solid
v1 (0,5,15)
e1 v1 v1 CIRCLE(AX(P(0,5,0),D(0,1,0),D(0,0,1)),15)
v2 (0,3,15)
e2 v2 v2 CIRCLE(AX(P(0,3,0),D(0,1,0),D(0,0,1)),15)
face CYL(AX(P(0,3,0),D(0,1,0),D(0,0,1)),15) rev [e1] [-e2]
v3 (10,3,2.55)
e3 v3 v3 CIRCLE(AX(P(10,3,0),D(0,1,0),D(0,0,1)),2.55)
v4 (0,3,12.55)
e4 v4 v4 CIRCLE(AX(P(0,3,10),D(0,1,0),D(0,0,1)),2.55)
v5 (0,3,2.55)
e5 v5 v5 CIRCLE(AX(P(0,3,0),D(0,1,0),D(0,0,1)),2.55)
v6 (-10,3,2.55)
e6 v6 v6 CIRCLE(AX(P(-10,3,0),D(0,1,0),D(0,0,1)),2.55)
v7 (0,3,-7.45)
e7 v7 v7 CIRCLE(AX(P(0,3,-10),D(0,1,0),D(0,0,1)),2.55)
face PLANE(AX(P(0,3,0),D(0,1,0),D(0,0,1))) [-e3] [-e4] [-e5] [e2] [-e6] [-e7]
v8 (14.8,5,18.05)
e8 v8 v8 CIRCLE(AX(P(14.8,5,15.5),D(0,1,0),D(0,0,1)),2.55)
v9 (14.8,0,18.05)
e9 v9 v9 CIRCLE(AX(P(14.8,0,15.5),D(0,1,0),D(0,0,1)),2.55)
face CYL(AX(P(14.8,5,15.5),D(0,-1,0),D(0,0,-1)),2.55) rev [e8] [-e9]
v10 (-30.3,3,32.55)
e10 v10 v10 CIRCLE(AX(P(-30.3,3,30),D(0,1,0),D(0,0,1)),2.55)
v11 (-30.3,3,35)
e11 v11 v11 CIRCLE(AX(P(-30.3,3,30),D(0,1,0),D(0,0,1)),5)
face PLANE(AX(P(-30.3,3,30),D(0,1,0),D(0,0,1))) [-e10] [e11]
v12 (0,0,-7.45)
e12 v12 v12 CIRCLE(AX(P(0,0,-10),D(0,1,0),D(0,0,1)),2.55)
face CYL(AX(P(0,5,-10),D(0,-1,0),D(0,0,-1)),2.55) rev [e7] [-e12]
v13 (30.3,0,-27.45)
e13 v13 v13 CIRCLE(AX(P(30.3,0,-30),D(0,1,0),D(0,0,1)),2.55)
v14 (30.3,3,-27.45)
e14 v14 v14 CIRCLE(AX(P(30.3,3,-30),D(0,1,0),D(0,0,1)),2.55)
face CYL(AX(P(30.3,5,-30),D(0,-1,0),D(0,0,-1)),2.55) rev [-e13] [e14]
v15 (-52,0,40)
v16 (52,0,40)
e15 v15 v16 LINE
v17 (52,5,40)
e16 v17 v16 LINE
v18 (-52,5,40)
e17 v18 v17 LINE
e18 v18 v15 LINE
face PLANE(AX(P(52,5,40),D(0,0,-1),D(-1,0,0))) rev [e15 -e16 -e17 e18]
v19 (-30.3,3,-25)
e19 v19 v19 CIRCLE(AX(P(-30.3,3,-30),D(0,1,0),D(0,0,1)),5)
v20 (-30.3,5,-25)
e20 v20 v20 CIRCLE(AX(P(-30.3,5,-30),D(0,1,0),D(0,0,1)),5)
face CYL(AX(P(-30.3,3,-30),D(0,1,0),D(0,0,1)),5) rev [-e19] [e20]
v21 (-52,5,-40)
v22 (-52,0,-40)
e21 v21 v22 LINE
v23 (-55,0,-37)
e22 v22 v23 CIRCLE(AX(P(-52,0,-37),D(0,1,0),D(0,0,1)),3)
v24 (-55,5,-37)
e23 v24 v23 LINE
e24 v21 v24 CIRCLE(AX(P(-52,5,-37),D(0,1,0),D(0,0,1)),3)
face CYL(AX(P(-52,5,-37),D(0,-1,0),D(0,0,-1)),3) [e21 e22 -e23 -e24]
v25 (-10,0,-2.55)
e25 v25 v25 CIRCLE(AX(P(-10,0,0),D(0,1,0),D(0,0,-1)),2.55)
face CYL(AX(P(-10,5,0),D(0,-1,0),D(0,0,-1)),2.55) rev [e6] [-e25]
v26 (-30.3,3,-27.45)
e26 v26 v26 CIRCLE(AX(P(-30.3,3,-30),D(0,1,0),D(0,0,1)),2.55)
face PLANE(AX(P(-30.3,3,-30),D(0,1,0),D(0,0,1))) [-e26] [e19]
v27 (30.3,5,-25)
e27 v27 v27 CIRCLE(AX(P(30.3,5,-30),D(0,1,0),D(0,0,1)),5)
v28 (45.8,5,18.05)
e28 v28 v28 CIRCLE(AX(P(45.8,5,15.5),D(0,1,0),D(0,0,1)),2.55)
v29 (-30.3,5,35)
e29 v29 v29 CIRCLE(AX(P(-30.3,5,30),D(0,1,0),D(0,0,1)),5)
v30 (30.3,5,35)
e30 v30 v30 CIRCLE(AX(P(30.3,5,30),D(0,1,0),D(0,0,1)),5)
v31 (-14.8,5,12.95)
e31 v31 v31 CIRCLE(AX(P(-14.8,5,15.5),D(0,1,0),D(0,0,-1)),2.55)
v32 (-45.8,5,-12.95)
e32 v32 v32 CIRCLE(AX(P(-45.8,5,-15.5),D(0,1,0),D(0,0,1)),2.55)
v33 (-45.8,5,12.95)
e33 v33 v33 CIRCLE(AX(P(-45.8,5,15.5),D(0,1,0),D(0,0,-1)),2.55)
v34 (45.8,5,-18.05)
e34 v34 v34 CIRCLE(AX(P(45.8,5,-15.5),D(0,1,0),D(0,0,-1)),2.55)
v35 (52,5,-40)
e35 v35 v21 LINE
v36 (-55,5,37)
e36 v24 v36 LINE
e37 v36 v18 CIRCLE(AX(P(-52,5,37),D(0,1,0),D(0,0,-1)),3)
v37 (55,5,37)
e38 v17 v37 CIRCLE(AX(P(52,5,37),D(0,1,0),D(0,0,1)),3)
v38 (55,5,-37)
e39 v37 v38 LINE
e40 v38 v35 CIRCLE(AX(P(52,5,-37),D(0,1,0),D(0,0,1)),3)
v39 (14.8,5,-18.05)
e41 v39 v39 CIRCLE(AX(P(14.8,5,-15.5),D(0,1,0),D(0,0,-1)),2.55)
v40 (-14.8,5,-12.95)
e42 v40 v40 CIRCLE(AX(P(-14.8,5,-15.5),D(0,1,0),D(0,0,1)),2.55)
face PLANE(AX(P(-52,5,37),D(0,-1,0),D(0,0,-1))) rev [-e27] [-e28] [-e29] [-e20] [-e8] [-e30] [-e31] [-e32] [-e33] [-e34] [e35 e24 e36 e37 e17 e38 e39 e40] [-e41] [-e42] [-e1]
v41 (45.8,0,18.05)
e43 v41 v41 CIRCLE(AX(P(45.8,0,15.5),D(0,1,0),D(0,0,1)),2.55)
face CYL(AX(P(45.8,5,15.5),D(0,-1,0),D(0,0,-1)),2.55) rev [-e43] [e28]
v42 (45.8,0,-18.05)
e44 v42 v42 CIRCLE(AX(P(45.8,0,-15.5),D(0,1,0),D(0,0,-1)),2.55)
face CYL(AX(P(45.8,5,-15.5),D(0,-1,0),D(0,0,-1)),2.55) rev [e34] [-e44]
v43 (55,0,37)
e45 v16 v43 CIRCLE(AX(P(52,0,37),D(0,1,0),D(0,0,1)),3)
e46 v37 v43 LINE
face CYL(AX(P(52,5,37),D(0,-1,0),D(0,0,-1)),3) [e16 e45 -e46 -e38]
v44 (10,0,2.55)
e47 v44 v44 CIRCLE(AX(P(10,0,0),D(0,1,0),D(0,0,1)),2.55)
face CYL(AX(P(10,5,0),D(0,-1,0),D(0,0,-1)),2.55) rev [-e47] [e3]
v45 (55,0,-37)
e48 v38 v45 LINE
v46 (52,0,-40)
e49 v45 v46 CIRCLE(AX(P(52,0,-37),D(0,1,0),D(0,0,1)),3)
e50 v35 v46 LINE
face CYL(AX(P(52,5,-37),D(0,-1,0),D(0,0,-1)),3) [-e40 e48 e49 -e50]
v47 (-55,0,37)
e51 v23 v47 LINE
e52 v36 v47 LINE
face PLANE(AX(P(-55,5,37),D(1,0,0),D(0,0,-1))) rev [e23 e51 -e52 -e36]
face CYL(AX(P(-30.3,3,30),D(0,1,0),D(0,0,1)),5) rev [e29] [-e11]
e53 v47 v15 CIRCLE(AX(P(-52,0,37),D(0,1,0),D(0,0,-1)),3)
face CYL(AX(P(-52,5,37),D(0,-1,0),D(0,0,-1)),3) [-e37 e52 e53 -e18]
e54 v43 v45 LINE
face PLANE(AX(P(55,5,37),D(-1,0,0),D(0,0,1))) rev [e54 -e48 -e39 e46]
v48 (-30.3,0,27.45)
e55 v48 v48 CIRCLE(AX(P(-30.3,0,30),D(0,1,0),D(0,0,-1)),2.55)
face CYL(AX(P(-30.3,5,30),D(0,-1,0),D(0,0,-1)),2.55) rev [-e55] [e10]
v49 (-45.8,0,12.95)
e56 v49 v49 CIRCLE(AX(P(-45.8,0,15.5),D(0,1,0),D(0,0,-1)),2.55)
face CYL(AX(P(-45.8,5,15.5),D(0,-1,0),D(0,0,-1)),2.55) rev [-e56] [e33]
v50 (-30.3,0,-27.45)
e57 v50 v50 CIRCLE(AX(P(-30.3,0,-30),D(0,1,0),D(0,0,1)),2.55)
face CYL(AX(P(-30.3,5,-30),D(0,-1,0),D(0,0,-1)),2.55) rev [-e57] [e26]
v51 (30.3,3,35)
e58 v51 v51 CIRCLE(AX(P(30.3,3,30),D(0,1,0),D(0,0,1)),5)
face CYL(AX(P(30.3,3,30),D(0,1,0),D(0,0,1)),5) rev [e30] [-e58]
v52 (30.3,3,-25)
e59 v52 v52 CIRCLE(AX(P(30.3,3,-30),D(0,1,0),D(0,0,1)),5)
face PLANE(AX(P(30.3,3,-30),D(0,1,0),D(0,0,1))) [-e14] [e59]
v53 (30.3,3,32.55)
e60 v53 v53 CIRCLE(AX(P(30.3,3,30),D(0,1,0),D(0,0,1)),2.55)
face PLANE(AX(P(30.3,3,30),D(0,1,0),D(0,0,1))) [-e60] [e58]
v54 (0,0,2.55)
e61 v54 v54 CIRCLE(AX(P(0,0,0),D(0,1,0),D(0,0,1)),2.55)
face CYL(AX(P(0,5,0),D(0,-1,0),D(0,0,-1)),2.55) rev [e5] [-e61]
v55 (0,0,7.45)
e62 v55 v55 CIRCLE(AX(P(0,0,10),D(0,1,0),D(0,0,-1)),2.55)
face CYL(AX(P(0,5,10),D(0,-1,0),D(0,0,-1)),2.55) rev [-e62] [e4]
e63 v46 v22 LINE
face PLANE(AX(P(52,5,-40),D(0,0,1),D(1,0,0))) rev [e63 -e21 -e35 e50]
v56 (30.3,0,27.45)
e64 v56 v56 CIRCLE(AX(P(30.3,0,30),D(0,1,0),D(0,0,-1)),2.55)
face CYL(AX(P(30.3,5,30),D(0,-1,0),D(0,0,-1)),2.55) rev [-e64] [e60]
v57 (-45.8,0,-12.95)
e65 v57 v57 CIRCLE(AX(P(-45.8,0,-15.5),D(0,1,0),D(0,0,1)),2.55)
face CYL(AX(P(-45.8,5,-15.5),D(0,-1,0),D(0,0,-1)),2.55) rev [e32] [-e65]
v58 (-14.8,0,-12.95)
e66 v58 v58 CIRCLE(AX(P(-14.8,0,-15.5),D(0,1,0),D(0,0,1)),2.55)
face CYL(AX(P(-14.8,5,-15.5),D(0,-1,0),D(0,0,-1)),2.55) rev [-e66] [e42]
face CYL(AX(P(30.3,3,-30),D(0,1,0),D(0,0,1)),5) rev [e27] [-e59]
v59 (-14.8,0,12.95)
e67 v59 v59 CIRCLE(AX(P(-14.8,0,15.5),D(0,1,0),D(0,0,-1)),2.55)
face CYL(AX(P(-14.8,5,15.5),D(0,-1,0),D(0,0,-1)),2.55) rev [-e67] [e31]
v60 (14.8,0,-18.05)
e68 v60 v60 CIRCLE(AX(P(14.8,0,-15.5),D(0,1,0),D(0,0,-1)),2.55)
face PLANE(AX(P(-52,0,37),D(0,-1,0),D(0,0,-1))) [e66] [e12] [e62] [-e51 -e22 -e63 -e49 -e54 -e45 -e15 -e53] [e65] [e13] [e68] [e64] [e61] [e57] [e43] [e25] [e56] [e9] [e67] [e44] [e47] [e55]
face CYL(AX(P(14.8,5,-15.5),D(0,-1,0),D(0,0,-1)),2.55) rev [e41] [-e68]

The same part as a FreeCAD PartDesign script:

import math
import FreeCAD as App
import Part
import Sketcher
from FreeCAD import Vector
Q = App.Units.Quantity

doc = App.newDocument("Part")
body = doc.addObject("PartDesign::Body", "Body")

# Sketch on XZ plane
sketch1 = doc.addObject("Sketcher::SketchObject", "Sketch")
body.addObject(sketch1)
sketch1.AttachmentSupport = (doc.XZ_Plane, [""])
sketch1.MapMode = "FlatFace"
sketch1.addGeometry([
    Part.LineSegment(Vector(-52, 40, 0), Vector(52, 40, 0)),  # 0
    Part.ArcOfCircle(Part.Circle(Vector(52, 37, 0), Vector(0, 0, 1), 3), math.radians(0), math.radians(90)),  # 1
    Part.LineSegment(Vector(55, 37, 0), Vector(55, -37, 0)),  # 2
    Part.ArcOfCircle(Part.Circle(Vector(52, -37, 0), Vector(0, 0, 1), 3), math.radians(-90), math.radians(0)),  # 3
    Part.LineSegment(Vector(52, -40, 0), Vector(-52, -40, 0)),  # 4
    Part.ArcOfCircle(Part.Circle(Vector(-52, -37, 0), Vector(0, 0, 1), 3), math.radians(180), math.radians(270)),  # 5
    Part.LineSegment(Vector(-55, -37, 0), Vector(-55, 37, 0)),  # 6
    Part.ArcOfCircle(Part.Circle(Vector(-52, 37, 0), Vector(0, 0, 1), 3), math.radians(90), math.radians(180)),  # 7
    Part.Circle(Vector(30.3, 30, 0), Vector(0, 0, 1), 2.5),  # 8
    Part.Circle(Vector(45.8, 15.5, 0), Vector(0, 0, 1), 2.5),  # 9
    Part.Circle(Vector(14.8, 15.5, 0), Vector(0, 0, 1), 2.5),  # 10
    Part.Circle(Vector(-30.3, 30, 0), Vector(0, 0, 1), 2.5),  # 11
    Part.Circle(Vector(0, 10, 0), Vector(0, 0, 1), 2.5),  # 12
    Part.Circle(Vector(-14.8, 15.5, 0), Vector(0, 0, 1), 2.5),  # 13
    Part.Circle(Vector(-45.8, 15.5, 0), Vector(0, 0, 1), 2.5),  # 14
    Part.Circle(Vector(45.8, -15.5, 0), Vector(0, 0, 1), 2.5),  # 15
    Part.Circle(Vector(10, 0, 0), Vector(0, 0, 1), 2.5),  # 16
    Part.Circle(Vector(14.8, -15.5, 0), Vector(0, 0, 1), 2.5),  # 17
    Part.Circle(Vector(30.3, -30, 0), Vector(0, 0, 1), 2.5),  # 18
    Part.Circle(Vector(0, 0, 0), Vector(0, 0, 1), 2.5),  # 19
    Part.Circle(Vector(-10, 0, 0), Vector(0, 0, 1), 2.5),  # 20
    Part.Circle(Vector(0, -10, 0), Vector(0, 0, 1), 2.5),  # 21
    Part.Circle(Vector(-14.8, -15.5, 0), Vector(0, 0, 1), 2.5),  # 22
    Part.Circle(Vector(-45.8, -15.5, 0), Vector(0, 0, 1), 2.5),  # 23
    Part.Circle(Vector(-30.3, -30, 0), Vector(0, 0, 1), 2.5),  # 24
], False)
sketch1.addConstraint([
    Sketcher.Constraint("Tangent", 0, 2, 1, 2),
    Sketcher.Constraint("Tangent", 1, 1, 2, 1),
    Sketcher.Constraint("Tangent", 2, 2, 3, 2),
    Sketcher.Constraint("Tangent", 3, 1, 4, 1),
    Sketcher.Constraint("Tangent", 4, 2, 5, 2),
    Sketcher.Constraint("Tangent", 5, 1, 6, 1),
    Sketcher.Constraint("Tangent", 6, 2, 7, 2),
    Sketcher.Constraint("Tangent", 7, 1, 0, 1),
    Sketcher.Constraint("Horizontal", 0),
    Sketcher.Constraint("Vertical", 2),
    Sketcher.Constraint("Horizontal", 4),
    Sketcher.Constraint("Vertical", 6),
    Sketcher.Constraint("Coincident", 19, 3, -1, 1),
    Sketcher.Constraint("Equal", 1, 3),
    Sketcher.Constraint("Equal", 3, 5),
    Sketcher.Constraint("Equal", 5, 7),
    Sketcher.Constraint("Equal", 8, 9),
    Sketcher.Constraint("Equal", 9, 10),
    Sketcher.Constraint("Equal", 10, 11),
    Sketcher.Constraint("Equal", 11, 12),
    Sketcher.Constraint("Equal", 12, 13),
    Sketcher.Constraint("Equal", 13, 14),
    Sketcher.Constraint("Equal", 14, 15),
    Sketcher.Constraint("Equal", 15, 16),
    Sketcher.Constraint("Equal", 16, 17),
    Sketcher.Constraint("Equal", 17, 18),
    Sketcher.Constraint("Equal", 18, 19),
    Sketcher.Constraint("Equal", 19, 20),
    Sketcher.Constraint("Equal", 20, 21),
    Sketcher.Constraint("Equal", 21, 22),
    Sketcher.Constraint("Equal", 22, 23),
    Sketcher.Constraint("Equal", 23, 24),
    Sketcher.Constraint("Symmetric", 1, 3, 5, 3, -1, 1),
    Sketcher.Constraint("Symmetric", 14, 3, 15, 3, -1, 1),
    Sketcher.Constraint("Symmetric", 13, 3, 17, 3, -1, 1),
    Sketcher.Constraint("Symmetric", 11, 3, 18, 3, -1, 1),
    Sketcher.Constraint("Symmetric", 16, 3, 20, 3, -1, 1),
    Sketcher.Constraint("Symmetric", 12, 3, 21, 3, -1, 1),
    Sketcher.Constraint("Symmetric", 10, 3, 22, 3, -1, 1),
    Sketcher.Constraint("Symmetric", 9, 3, 23, 3, -1, 1),
    Sketcher.Constraint("Symmetric", 8, 3, 24, 3, -1, 1),
    Sketcher.Constraint("Symmetric", 8, 3, 11, 3, -2),
    Sketcher.Constraint("Symmetric", 10, 3, 13, 3, -2),
    Sketcher.Constraint("Symmetric", 9, 3, 14, 3, -2),
    Sketcher.Constraint("PointOnObject", 12, 3, -2),
    Sketcher.Constraint("PointOnObject", 16, 3, -1),
    Sketcher.Constraint("Horizontal", 9, 3, 10, 3),
    Sketcher.Constraint("Radius", 1, Q("3 mm")),
    Sketcher.Constraint("Diameter", 8, Q("5.1 mm")),
    Sketcher.Constraint("DistanceX", 0, 1, 0, 2, Q("104 mm")),
    Sketcher.Constraint("DistanceY", 2, 2, 2, 1, Q("74 mm")),
    Sketcher.Constraint("DistanceY", -1, 1, 8, 3, Q("30 mm")),
    Sketcher.Constraint("DistanceY", -1, 1, 12, 3, Q("10 mm")),
    Sketcher.Constraint("DistanceX", -1, 1, 16, 3, Q("10 mm")),
    Sketcher.Constraint("DistanceX", 10, 3, 9, 3, Q("31 mm")),
    Sketcher.Constraint("DistanceY", 15, 3, 9, 3, Q("31 mm")),
    Sketcher.Constraint("DistanceX", -1, 1, 8, 3, Q("30.3 mm")),
    Sketcher.Constraint("DistanceX", -1, 1, 9, 3, Q("45.8 mm")),
])
pad1 = doc.addObject("PartDesign::Pad", "Pad")
body.addObject(pad1)
pad1.Profile = sketch1
pad1.Length = 5
pad1.Reversed = True

# Sketch on XZ plane
sketch2 = doc.addObject("Sketcher::SketchObject", "Sketch001")
body.addObject(sketch2)
sketch2.AttachmentSupport = (doc.XZ_Plane, [""])
sketch2.MapMode = "FlatFace"
sketch2.AttachmentOffset = App.Placement(Vector(0, 0, -5), App.Rotation())
sketch2.addGeometry([
    Part.Circle(Vector(-30, 30, 0), Vector(0, 0, 1), 5),  # 0
    Part.Circle(Vector(-30, -30, 0), Vector(0, 0, 1), 5),  # 1
    Part.Circle(Vector(30, 30, 0), Vector(0, 0, 1), 5),  # 2
    Part.Circle(Vector(30, -30, 0), Vector(0, 0, 1), 5),  # 3
    Part.Circle(Vector(0, 0, 0), Vector(0, 0, 1), 15),  # 4
], False)
sketch2.addConstraint([
    Sketcher.Constraint("Coincident", 4, 3, -1, 1),
    Sketcher.Constraint("Equal", 0, 1),
    Sketcher.Constraint("Equal", 1, 2),
    Sketcher.Constraint("Equal", 2, 3),
    Sketcher.Constraint("Symmetric", 1, 3, 2, 3, -1, 1),
    Sketcher.Constraint("Symmetric", 0, 3, 3, 3, -1, 1),
    Sketcher.Constraint("Symmetric", 0, 3, 2, 3, -2),
    Sketcher.Constraint("Diameter", 0, Q("10 mm")),
    Sketcher.Constraint("Diameter", 4, Q("30 mm")),
    Sketcher.Constraint("DistanceY", -1, 1, 0, 3, Q("30 mm")),
    Sketcher.Constraint("DistanceX", 0, 3, -1, 1, Q("30.3 mm")),
])
pocket1 = doc.addObject("PartDesign::Pocket", "Pocket")
body.addObject(pocket1)
pocket1.Profile = sketch2
pocket1.Length = 2
pocket1.Reversed = True

doc.recompute()
